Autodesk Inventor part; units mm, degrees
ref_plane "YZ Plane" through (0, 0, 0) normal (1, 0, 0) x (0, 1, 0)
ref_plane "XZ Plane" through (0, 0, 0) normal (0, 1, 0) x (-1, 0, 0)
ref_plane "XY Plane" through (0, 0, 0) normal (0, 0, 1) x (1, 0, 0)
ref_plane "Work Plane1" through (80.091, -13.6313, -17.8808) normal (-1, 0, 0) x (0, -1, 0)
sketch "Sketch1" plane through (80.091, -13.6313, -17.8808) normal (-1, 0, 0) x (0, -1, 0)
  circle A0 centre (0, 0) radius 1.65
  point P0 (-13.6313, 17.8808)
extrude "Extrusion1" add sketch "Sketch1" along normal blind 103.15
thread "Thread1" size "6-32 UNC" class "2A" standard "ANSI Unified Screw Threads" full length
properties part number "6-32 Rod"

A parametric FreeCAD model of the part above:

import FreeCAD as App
import Part
import Sketcher
Q = App.Units.Quantity

doc = App.newDocument("Part")
params = doc.addObject("Spreadsheet::Sheet", "Params")
for row, (alias, value) in enumerate([
    ("sketch1_diameter", "3.3 mm"),
    ("pad1_length", "103.15 mm"),
], start=1):
    params.set(f"A{row}", alias)
    params.set(f"B{row}", "=" + value)
    params.setAlias(f"B{row}", alias)

body = doc.addObject("PartDesign::Body", "Body")

sketch1 = body.newObject("Sketcher::SketchObject", "Sketch")
sketch1.AttachmentSupport = (doc.getObject("YZ_Plane"), [""])
sketch1.MapMode = "FlatFace"
sketch1.AttachmentOffset = App.Placement(App.Vector(0, 0, 80.091), App.Rotation())
sketch1.addGeometry(Part.Circle(App.Vector(-13.6, -17.9, 0), App.Vector(0, 0, 1), 1.6), False)
sketch1.addConstraint(Sketcher.Constraint("Diameter", 0, Q("3.3 mm")))
sketch1.addConstraint(Sketcher.Constraint("DistanceX", 0, 3, -1, 1, Q("13.6313 mm")))
sketch1.addConstraint(Sketcher.Constraint("DistanceY", 0, 3, -1, 1, Q("17.8808 mm")))
sketch1.setExpression("Constraints[0]", "Params.sketch1_diameter")
pad1 = body.newObject("PartDesign::Pad", "Pad")
pad1.Profile = sketch1
pad1.setExpression("Length", "Params.pad1_length")
pad1.Reversed = True

doc.recompute()
